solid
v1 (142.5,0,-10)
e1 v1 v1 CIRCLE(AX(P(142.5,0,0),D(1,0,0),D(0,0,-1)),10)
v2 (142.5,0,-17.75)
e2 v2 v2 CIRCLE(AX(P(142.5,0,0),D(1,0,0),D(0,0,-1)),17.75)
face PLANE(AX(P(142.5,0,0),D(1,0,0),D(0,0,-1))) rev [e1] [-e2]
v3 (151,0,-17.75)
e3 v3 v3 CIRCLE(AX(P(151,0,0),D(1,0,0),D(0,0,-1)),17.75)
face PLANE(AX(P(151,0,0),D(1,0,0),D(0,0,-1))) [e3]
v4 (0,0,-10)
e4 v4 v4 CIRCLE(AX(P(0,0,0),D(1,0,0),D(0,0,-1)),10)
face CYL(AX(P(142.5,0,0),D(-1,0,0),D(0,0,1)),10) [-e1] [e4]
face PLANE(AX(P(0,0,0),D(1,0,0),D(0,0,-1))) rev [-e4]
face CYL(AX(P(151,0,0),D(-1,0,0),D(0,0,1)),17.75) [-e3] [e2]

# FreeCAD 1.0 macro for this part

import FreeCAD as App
import Part
import Sketcher

doc = App.newDocument("Part")
body = doc.addObject("PartDesign::Body", "Body")

sketch1 = body.newObject("Sketcher::SketchObject", "Sketch")
sketch1.AttachmentSupport = (doc.getObject("YZ_Plane"), [""])
sketch1.MapMode = "FlatFace"
sketch1.addGeometry(Part.Circle(App.Vector(0, 0, 0), App.Vector(0, 0, 1), 10), False)
sketch1.addConstraint(Sketcher.Constraint("Coincident", 0, 3, -1, 1))
sketch1.addConstraint(Sketcher.Constraint("Diameter", 0, 20.0))
pad1 = body.newObject("PartDesign::Pad", "Pad")
pad1.Profile = sketch1
pad1.Length = 142.5

sketch2 = body.newObject("Sketcher::SketchObject", "Sketch001")
sketch2.AttachmentSupport = (doc.getObject("YZ_Plane"), [""])
sketch2.MapMode = "FlatFace"
sketch2.AttachmentOffset = App.Placement(App.Vector(0, 0, 142.5), App.Rotation())
sketch2.addGeometry(Part.Circle(App.Vector(0, 0, 0), App.Vector(0, 0, 1), 17.75), False)
sketch2.addConstraint(Sketcher.Constraint("Coincident", 0, 3, -1, 1))
sketch2.addConstraint(Sketcher.Constraint("Diameter", 0, 35.5))
pad2 = body.newObject("PartDesign::Pad", "Pad001")
pad2.Profile = sketch2
pad2.Length = 8.5

doc.recompute()
